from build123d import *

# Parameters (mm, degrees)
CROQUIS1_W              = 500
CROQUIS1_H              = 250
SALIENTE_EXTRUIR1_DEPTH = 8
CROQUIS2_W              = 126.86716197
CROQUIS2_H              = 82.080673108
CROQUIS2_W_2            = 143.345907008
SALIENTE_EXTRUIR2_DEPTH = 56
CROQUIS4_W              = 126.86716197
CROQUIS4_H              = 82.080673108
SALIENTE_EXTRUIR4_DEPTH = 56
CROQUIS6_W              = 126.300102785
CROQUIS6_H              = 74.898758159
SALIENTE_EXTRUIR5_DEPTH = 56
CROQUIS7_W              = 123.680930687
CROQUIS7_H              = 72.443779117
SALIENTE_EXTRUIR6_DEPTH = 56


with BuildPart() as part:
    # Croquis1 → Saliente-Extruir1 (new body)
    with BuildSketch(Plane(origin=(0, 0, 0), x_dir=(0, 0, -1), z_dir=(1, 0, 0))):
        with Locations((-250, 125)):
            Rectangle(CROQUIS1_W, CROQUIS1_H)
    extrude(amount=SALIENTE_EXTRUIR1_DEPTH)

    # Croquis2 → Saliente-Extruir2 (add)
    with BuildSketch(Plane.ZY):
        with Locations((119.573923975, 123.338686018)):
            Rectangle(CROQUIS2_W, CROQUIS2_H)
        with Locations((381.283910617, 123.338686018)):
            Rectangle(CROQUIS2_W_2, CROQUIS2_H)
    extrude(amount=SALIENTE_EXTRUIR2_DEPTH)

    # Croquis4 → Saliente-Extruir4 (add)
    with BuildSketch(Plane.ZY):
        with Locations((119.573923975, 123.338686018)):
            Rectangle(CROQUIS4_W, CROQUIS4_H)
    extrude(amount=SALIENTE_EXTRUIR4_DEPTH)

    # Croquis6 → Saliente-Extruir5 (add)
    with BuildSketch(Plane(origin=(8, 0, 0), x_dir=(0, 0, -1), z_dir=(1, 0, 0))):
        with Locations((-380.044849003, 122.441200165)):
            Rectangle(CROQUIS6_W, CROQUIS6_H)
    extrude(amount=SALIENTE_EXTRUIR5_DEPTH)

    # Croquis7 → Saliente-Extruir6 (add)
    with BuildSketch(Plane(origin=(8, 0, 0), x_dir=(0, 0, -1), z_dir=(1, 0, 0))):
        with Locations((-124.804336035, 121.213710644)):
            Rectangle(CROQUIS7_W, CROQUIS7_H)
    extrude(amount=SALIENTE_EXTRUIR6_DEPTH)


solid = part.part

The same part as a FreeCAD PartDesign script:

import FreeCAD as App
import Part
import Sketcher
Q = App.Units.Quantity


def add_polygon(sketch, points):
    """Adds a closed chain of lines whose ends are joined by coincident constraints."""
    first, n = sketch.GeometryCount, len(points)
    for a, b in zip(points, points[1:] + points[:1]):
        sketch.addGeometry(Part.LineSegment(App.Vector(*a, 0), App.Vector(*b, 0)), False)
    for i in range(n):
        sketch.addConstraint(Sketcher.Constraint("Coincident", first + i, 2, first + (i + 1) % n, 1))

doc = App.newDocument("Part")
params = doc.addObject("Spreadsheet::Sheet", "Params")
for row, (alias, value) in enumerate([
    ("sketch1_width", "250 mm"),
    ("sketch1_height", "500 mm"),
    ("pad1_length", "8 mm"),
    ("pad2_length", "56 mm"),
    ("pad3_length", "56 mm"),
    ("pad4_length", "56 mm"),
    ("pad5_length", "56 mm"),
], start=1):
    params.set(f"A{row}", alias)
    params.set(f"B{row}", "=" + value)
    params.setAlias(f"B{row}", alias)

body = doc.addObject("PartDesign::Body", "Body")

# Sketch on YZ plane
sketch1 = doc.addObject("Sketcher::SketchObject", "Sketch")
body.addObject(sketch1)
sketch1.AttachmentSupport = (doc.YZ_Plane, [""])
sketch1.MapMode = "FlatFace"
add_polygon(sketch1, [(250, 500), (0, 500), (0, 0), (250, 0)])  # lines 0-3
sketch1.addConstraint(Sketcher.Constraint("Horizontal", 0))
sketch1.addConstraint(Sketcher.Constraint("Vertical", 1))
sketch1.addConstraint(Sketcher.Constraint("Horizontal", 2))
sketch1.addConstraint(Sketcher.Constraint("Vertical", 3))
sketch1.addConstraint(Sketcher.Constraint("Coincident", 1, 2, -1, 1))
sketch1.addConstraint(Sketcher.Constraint("DistanceX", 0, 2, 0, 1, Q("250 mm")))
sketch1.addConstraint(Sketcher.Constraint("DistanceY", 1, 2, 1, 1, Q("500 mm")))
sketch1.setExpression("Constraints[9]", "Params.sketch1_width")
sketch1.setExpression("Constraints[10]", "Params.sketch1_height")
pad1 = doc.addObject("PartDesign::Pad", "Pad")
body.addObject(pad1)
pad1.Profile = sketch1
pad1.setExpression("Length", "Params.pad1_length")

# Sketch on YZ plane
sketch2 = doc.addObject("Sketcher::SketchObject", "Sketch001")
body.addObject(sketch2)
sketch2.AttachmentSupport = (doc.YZ_Plane, [""])
sketch2.MapMode = "FlatFace"
add_polygon(sketch2, [(164, 56), (82, 56), (82, 183), (164, 183)])  # lines 0-3
add_polygon(sketch2, [(164, 310), (82, 310), (82, 453), (164, 453)])  # lines 4-7
sketch2.addConstraint(Sketcher.Constraint("Horizontal", 0))
sketch2.addConstraint(Sketcher.Constraint("Vertical", 1))
sketch2.addConstraint(Sketcher.Constraint("Horizontal", 2))
sketch2.addConstraint(Sketcher.Constraint("Vertical", 3))
sketch2.addConstraint(Sketcher.Constraint("Horizontal", 4))
sketch2.addConstraint(Sketcher.Constraint("Vertical", 5))
sketch2.addConstraint(Sketcher.Constraint("Horizontal", 6))
sketch2.addConstraint(Sketcher.Constraint("Vertical", 7))
sketch2.addConstraint(Sketcher.Constraint("Vertical", 1, 2, 4, 2))
sketch2.addConstraint(Sketcher.Constraint("Vertical", 3, 2, 6, 2))
sketch2.addConstraint(Sketcher.Constraint("DistanceY", 1, 1, 1, 2, Q("126.867162 mm")))
sketch2.addConstraint(Sketcher.Constraint("DistanceX", 0, 2, 0, 1, Q("82.080673 mm")))
sketch2.addConstraint(Sketcher.Constraint("DistanceY", 5, 1, 5, 2, Q("143.345907 mm")))
sketch2.addConstraint(Sketcher.Constraint("DistanceX", -1, 1, 0, 2, Q("82.298349 mm")))
sketch2.addConstraint(Sketcher.Constraint("DistanceY", 1, 2, 5, 2, Q("269.949359 mm")))
sketch2.addConstraint(Sketcher.Constraint("DistanceY", -1, 1, 0, 2, Q("56.140343 mm")))
pad2 = doc.addObject("PartDesign::Pad", "Pad001")
body.addObject(pad2)
pad2.Profile = sketch2
pad2.setExpression("Length", "Params.pad2_length")
pad2.Reversed = True

# Sketch on YZ plane
sketch3 = doc.addObject("Sketcher::SketchObject", "Sketch002")
body.addObject(sketch3)
sketch3.AttachmentSupport = (doc.YZ_Plane, [""])
sketch3.MapMode = "FlatFace"
add_polygon(sketch3, [(164, 56), (82, 56), (82, 183), (164, 183)])  # lines 0-3
sketch3.addConstraint(Sketcher.Constraint("Horizontal", 0))
sketch3.addConstraint(Sketcher.Constraint("Vertical", 1))
sketch3.addConstraint(Sketcher.Constraint("Horizontal", 2))
sketch3.addConstraint(Sketcher.Constraint("Vertical", 3))
sketch3.addConstraint(Sketcher.Constraint("DistanceY", 1, 1, 1, 2, Q("126.867162 mm")))
sketch3.addConstraint(Sketcher.Constraint("DistanceX", 0, 2, 0, 1, Q("82.080673 mm")))
sketch3.addConstraint(Sketcher.Constraint("DistanceX", -1, 1, 0, 2, Q("82.298349 mm")))
sketch3.addConstraint(Sketcher.Constraint("DistanceY", -1, 1, 0, 2, Q("56.140343 mm")))
pad3 = doc.addObject("PartDesign::Pad", "Pad002")
body.addObject(pad3)
pad3.Profile = sketch3
pad3.setExpression("Length", "Params.pad3_length")
pad3.Reversed = True

# Sketch on YZ plane
sketch4 = doc.addObject("Sketcher::SketchObject", "Sketch003")
body.addObject(sketch4)
sketch4.AttachmentSupport = (doc.YZ_Plane, [""])
sketch4.MapMode = "FlatFace"
sketch4.AttachmentOffset = App.Placement(App.Vector(0, 0, 8), App.Rotation())
add_polygon(sketch4, [(160, 443), (85, 443), (85, 317), (160, 317)])  # lines 0-3
sketch4.addConstraint(Sketcher.Constraint("Horizontal", 0))
sketch4.addConstraint(Sketcher.Constraint("Vertical", 1))
sketch4.addConstraint(Sketcher.Constraint("Horizontal", 2))
sketch4.addConstraint(Sketcher.Constraint("Vertical", 3))
sketch4.addConstraint(Sketcher.Constraint("DistanceX", 0, 2, 0, 1, Q("74.898758 mm")))
sketch4.addConstraint(Sketcher.Constraint("DistanceY", -1, 1, 0, 2, Q("443.1949 mm")))
sketch4.addConstraint(Sketcher.Constraint("DistanceY", 1, 2, 1, 1, Q("126.300103 mm")))
sketch4.addConstraint(Sketcher.Constraint("DistanceX", -1, 1, 0, 2, Q("84.991821 mm")))
pad4 = doc.addObject("PartDesign::Pad", "Pad003")
body.addObject(pad4)
pad4.Profile = sketch4
pad4.setExpression("Length", "Params.pad4_length")

# Sketch on YZ plane
sketch5 = doc.addObject("Sketcher::SketchObject", "Sketch004")
body.addObject(sketch5)
sketch5.AttachmentSupport = (doc.YZ_Plane, [""])
sketch5.MapMode = "FlatFace"
sketch5.AttachmentOffset = App.Placement(App.Vector(0, 0, 8), App.Rotation())
add_polygon(sketch5, [(157, 187), (85, 187), (85, 63), (157, 63)])  # lines 0-3
sketch5.addConstraint(Sketcher.Constraint("Horizontal", 0))
sketch5.addConstraint(Sketcher.Constraint("Vertical", 1))
sketch5.addConstraint(Sketcher.Constraint("Horizontal", 2))
sketch5.addConstraint(Sketcher.Constraint("Vertical", 3))
sketch5.addConstraint(Sketcher.Constraint("DistanceX", 0, 2, 0, 1, Q("72.443779 mm")))
sketch5.addConstraint(Sketcher.Constraint("DistanceY", 1, 2, 1, 1, Q("123.680931 mm")))
sketch5.addConstraint(Sketcher.Constraint("DistanceY", -1, 1, 0, 2, Q("186.644801 mm")))
sketch5.addConstraint(Sketcher.Constraint("DistanceX", -1, 1, 2, 2, Q("157.4356 mm")))
pad5 = doc.addObject("PartDesign::Pad", "Pad004")
body.addObject(pad5)
pad5.Profile = sketch5
pad5.setExpression("Length", "Params.pad5_length")

doc.recompute()
